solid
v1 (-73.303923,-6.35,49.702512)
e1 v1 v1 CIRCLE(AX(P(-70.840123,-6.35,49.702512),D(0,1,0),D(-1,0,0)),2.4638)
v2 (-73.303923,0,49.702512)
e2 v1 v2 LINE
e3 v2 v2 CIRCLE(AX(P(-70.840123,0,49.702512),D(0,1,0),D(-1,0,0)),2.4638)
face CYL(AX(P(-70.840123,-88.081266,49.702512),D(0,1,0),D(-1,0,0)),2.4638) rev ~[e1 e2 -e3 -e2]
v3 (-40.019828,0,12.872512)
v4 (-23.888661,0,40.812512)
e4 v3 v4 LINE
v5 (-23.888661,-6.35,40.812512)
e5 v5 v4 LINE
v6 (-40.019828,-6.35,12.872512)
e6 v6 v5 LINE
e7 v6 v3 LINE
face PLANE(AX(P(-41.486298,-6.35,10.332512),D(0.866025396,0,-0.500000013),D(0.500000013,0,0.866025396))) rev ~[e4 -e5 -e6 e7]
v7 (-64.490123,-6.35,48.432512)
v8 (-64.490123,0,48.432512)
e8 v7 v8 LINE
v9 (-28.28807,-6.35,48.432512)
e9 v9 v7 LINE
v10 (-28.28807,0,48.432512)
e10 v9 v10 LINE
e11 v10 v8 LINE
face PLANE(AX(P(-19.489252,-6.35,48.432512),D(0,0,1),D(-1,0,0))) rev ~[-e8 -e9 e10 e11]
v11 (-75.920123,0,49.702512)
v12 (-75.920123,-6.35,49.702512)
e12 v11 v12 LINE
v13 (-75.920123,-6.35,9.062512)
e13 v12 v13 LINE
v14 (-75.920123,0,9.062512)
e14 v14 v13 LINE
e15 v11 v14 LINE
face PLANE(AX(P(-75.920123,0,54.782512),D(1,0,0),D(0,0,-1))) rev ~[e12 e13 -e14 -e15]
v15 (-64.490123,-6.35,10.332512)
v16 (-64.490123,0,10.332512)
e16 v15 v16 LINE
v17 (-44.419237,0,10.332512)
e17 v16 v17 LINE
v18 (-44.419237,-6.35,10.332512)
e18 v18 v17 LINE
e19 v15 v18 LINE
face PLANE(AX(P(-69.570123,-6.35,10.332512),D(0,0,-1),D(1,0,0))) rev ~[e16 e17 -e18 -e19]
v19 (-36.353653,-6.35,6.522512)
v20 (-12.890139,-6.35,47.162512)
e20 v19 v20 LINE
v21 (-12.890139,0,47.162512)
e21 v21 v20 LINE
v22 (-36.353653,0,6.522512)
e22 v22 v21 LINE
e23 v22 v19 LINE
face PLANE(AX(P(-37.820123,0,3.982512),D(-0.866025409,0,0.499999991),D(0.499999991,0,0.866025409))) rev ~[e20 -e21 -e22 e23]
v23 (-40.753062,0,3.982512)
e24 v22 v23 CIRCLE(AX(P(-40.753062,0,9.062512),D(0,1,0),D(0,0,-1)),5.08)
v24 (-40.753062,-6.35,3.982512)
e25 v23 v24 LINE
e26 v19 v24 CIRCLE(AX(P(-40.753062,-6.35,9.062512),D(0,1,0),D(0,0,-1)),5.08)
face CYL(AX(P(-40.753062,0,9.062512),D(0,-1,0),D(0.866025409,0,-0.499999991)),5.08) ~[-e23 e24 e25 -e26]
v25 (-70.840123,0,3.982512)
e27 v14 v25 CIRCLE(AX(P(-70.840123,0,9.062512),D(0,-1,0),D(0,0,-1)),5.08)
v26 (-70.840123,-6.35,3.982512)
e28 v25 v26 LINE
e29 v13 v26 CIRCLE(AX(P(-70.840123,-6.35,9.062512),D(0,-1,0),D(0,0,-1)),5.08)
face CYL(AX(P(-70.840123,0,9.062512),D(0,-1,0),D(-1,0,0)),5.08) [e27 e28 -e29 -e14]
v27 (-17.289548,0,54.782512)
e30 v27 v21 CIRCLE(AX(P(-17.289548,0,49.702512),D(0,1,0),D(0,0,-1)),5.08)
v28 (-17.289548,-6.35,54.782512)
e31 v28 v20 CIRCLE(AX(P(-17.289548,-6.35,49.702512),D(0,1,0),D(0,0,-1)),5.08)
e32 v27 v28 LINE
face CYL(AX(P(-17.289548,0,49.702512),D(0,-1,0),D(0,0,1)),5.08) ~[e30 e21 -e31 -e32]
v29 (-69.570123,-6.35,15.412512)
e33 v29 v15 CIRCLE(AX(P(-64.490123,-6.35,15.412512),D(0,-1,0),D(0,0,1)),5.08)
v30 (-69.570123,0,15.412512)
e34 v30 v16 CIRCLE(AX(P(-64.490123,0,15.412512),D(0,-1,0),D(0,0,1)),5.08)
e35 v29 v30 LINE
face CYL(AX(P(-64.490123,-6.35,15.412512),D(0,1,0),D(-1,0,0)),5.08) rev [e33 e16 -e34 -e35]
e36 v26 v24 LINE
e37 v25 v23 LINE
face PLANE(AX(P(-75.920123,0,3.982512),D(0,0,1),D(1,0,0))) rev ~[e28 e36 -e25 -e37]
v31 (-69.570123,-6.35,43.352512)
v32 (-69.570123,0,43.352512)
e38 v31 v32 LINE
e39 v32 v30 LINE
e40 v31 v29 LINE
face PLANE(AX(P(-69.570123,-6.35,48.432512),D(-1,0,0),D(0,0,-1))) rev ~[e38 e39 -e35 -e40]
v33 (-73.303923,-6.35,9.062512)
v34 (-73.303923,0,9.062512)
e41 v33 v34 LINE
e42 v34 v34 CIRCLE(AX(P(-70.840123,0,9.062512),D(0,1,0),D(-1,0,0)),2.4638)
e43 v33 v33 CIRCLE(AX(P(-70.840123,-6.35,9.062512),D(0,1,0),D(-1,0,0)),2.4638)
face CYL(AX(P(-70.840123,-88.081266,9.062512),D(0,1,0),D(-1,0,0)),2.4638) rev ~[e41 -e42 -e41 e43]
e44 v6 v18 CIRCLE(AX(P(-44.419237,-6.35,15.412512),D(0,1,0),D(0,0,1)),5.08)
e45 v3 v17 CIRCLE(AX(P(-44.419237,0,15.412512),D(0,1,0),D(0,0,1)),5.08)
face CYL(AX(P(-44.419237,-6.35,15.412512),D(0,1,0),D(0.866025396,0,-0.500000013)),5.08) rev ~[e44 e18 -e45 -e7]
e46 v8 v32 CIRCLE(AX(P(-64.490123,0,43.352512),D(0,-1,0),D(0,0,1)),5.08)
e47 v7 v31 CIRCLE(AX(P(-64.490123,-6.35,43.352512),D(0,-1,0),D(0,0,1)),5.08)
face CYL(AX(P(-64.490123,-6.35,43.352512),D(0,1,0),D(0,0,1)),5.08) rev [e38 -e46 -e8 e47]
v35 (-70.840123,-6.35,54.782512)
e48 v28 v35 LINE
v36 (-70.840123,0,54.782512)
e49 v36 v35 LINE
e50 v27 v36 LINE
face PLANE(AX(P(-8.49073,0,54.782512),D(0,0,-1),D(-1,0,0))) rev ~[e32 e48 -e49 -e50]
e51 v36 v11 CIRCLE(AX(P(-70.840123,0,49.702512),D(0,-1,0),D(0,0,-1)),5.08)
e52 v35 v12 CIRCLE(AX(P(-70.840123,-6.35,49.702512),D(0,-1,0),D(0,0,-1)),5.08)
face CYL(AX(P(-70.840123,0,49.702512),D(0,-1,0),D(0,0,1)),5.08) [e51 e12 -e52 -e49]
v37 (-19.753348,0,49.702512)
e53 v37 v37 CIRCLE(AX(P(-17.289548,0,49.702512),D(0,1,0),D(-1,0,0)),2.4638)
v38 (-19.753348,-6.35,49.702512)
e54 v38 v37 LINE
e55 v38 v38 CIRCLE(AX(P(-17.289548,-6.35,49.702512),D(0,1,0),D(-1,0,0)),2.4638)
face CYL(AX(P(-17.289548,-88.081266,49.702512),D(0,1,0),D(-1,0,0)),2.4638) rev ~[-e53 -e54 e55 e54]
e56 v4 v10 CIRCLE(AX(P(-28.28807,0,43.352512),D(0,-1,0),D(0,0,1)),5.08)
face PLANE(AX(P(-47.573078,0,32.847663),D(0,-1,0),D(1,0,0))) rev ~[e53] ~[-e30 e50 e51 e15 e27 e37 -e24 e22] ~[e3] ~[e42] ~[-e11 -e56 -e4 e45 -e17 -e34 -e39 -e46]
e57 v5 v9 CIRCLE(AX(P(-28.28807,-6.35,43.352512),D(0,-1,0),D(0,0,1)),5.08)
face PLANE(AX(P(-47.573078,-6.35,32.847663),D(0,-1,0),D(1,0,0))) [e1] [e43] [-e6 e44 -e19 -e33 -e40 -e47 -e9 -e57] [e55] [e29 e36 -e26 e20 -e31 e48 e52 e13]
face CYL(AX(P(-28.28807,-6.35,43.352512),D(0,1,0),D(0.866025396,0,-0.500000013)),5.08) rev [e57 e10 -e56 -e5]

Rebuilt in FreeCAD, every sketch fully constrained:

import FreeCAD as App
import Part
import Sketcher
Q = App.Units.Quantity


def edges_at(feature, points):
    """Names of the edges that pass closest to the given points."""
    edges = feature.Shape.Edges
    near = lambda p: min(range(len(edges)), key=lambda i: edges[i].distToShape(Part.Vertex(*p))[0])
    return sorted({f"Edge{near(p) + 1}" for p in points})

doc = App.newDocument("Part")
body = doc.addObject("PartDesign::Body", "Body")

sketch1 = body.newObject("Sketcher::SketchObject", "Sketch")
sketch1.AttachmentSupport = (doc.getObject("XZ_Plane"), [""])
sketch1.MapMode = "FlatFace"
sketch1.addGeometry([
    Part.LineSegment(App.Vector(-8, 55, 0), App.Vector(-76, 55, 0)),
    Part.LineSegment(App.Vector(-76, 55, 0), App.Vector(-76, 4, 0)),
    Part.LineSegment(App.Vector(-76, 4, 0), App.Vector(-38, 4, 0)),
    Part.LineSegment(App.Vector(-38, 4, 0), App.Vector(-8, 55, 0)),
], False)
sketch1.addConstraint([
    Sketcher.Constraint("Coincident", 0, 2, 1, 1),
    Sketcher.Constraint("Coincident", 1, 2, 2, 1),
    Sketcher.Constraint("Coincident", 2, 2, 3, 1),
    Sketcher.Constraint("Coincident", 3, 2, 0, 1),
    Sketcher.Constraint("Horizontal", 0),
    Sketcher.Constraint("Vertical", 1),
    Sketcher.Constraint("Horizontal", 2),
    Sketcher.Constraint("DistanceY", 1, 2, 1, 1, Q("2 in")),
    Sketcher.Constraint("DistanceX", 2, 1, 2, 2, Q("1.5 in")),
    Sketcher.Constraint("Angle", 3, Q("60.000001 deg")),
    Sketcher.Constraint("DistanceY", -1, 1, 0, 2, 54.782512),
    Sketcher.Constraint("DistanceX", 3, 2, -1, 1, 8.49073),
])
pad1 = body.newObject("PartDesign::Pad", "Pad")
pad1.Profile = sketch1
pad1.Length = Q("0.25 in")

sketch2 = body.newObject("Sketcher::SketchObject", "Sketch001")
sketch2.AttachmentSupport = (doc.getObject("XZ_Plane"), [""])
sketch2.MapMode = "FlatFace"
sketch2.AttachmentOffset = App.Placement(App.Vector(0, 0, 0.25 * 25.4), App.Rotation())
sketch2.addGeometry([
    Part.LineSegment(App.Vector(-41, 10, 0), App.Vector(-19, 48, 0)),
    Part.LineSegment(App.Vector(-19, 48, 0), App.Vector(-70, 48, 0)),
    Part.LineSegment(App.Vector(-70, 48, 0), App.Vector(-70, 10, 0)),
    Part.LineSegment(App.Vector(-70, 10, 0), App.Vector(-41, 10, 0)),
], False)
sketch2.addConstraint([
    Sketcher.Constraint("Coincident", 0, 2, 1, 1),
    Sketcher.Constraint("Coincident", 1, 2, 2, 1),
    Sketcher.Constraint("Coincident", 2, 2, 3, 1),
    Sketcher.Constraint("Coincident", 3, 2, 0, 1),
    Sketcher.Constraint("Horizontal", 1),
    Sketcher.Constraint("Vertical", 2),
    Sketcher.Constraint("Horizontal", 3),
    Sketcher.Constraint("DistanceY", 2, 2, 2, 1, Q("1.5 in")),
    Sketcher.Constraint("Angle", 0, Q("59.999999 deg")),
    Sketcher.Constraint("DistanceX", 1, 2, 1, 1, 50.080871),
    Sketcher.Constraint("DistanceX", 0, 2, -1, 1, 19.489252),
    Sketcher.Constraint("DistanceY", -1, 1, 0, 2, 48.432512),
])
pocket1 = body.newObject("PartDesign::Pocket", "Pocket")
pocket1.Profile = sketch2
pocket1.Length = Q("1 in")
doc.recompute()

fillet = body.newObject("PartDesign::Fillet", "Fillet")
fillet.Base = (pocket1, edges_at(pocket1, [
    (-8.491, -3.175, 54.783),
    (-75.92, -3.175, 54.783),
    (-37.82, -3.175, 3.983),
    (-75.92, -3.175, 3.983),
]))
fillet.Radius = Q("0.2 in")
doc.recompute()

fillet2 = body.newObject("PartDesign::Fillet", "Fillet001")
fillet2.Base = (fillet, edges_at(fillet, [
    (-41.486, -3.175, 10.333),
    (-69.57, -3.175, 10.333),
    (-69.57, -3.175, 48.433),
    (-19.489, -3.175, 48.433),
]))
fillet2.Radius = Q("0.2 in")

sketch3 = body.newObject("Sketcher::SketchObject", "Sketch002")
sketch3.AttachmentSupport = (doc.getObject("XZ_Plane"), [""])
sketch3.MapMode = "FlatFace"
sketch3.AttachmentOffset = App.Placement(App.Vector(0, 0, 0.25 * 25.4), App.Rotation())
sketch3.addGeometry([
    Part.Circle(App.Vector(-70.8, 49.7, 0), App.Vector(0, 0, 1), 2.5),
    Part.Circle(App.Vector(-70.8, 9.1, 0), App.Vector(0, 0, 1), 2.5),
    Part.Circle(App.Vector(-17.3, 49.7, 0), App.Vector(0, 0, 1), 2.5),
], False)
sketch3.addConstraint([
    Sketcher.Constraint("Equal", 0, 1),
    Sketcher.Constraint("Equal", 1, 2),
    Sketcher.Constraint("Horizontal", 0, 3, 2, 3),
    Sketcher.Constraint("Vertical", 0, 3, 1, 3),
    Sketcher.Constraint("Diameter", 0, Q("0.194 in")),
    Sketcher.Constraint("DistanceY", 1, 3, 0, 3, Q("1.6 in")),
    Sketcher.Constraint("DistanceX", 2, 3, -1, 1, 17.289548),
    Sketcher.Constraint("DistanceX", 0, 3, -1, 1, 70.840123),
    Sketcher.Constraint("DistanceY", -1, 1, 0, 3, 49.702512),
])
doc.recompute()
hole = body.newObject("PartDesign::Hole", "Hole")
hole.Profile = sketch3
hole.ThreadType = "None"
hole.Diameter = Q("0.194 in")
hole.DepthType = "ThroughAll"

doc.recompute()
